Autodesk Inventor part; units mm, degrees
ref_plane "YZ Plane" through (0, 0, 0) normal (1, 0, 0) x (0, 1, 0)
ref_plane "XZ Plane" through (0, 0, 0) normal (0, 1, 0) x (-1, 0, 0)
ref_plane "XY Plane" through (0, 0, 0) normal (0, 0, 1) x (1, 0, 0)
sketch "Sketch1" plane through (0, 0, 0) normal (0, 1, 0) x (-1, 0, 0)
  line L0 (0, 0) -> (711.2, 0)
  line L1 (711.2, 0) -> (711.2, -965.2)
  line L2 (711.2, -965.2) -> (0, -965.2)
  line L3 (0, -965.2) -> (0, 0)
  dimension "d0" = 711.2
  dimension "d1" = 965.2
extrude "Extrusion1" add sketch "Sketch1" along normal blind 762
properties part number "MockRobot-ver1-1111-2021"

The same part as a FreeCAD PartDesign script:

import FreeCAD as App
import Part
import Sketcher

V = App.Vector
Q = App.Units.Quantity

doc = App.newDocument("Part")
params = doc.addObject("Spreadsheet::Sheet", "Params")
for row, (alias, value) in enumerate([
    ("sketch1_width", "28 in"),
    ("sketch1_height", "38 in"),
    ("pad1_length", "30 in"),
], start=1):
    params.set(f"A{row}", alias)
    params.set(f"B{row}", "=" + value)
    params.setAlias(f"B{row}", alias)

body = doc.addObject("PartDesign::Body", "Body")

# Sketch on XZ plane
sketch1 = body.newObject("Sketcher::SketchObject", "Sketch")
sketch1.AttachmentSupport = (doc.getObject("XZ_Plane"), [""])
sketch1.MapMode = "FlatFace"
sketch1.addGeometry(Part.LineSegment(V(-711, 0, 0), V(0, 0, 0)), False)
sketch1.addGeometry(Part.LineSegment(V(0, 0, 0), V(0, -965, 0)), False)
sketch1.addGeometry(Part.LineSegment(V(0, -965, 0), V(-711, -965, 0)), False)
sketch1.addGeometry(Part.LineSegment(V(-711, -965, 0), V(-711, 0, 0)), False)
sketch1.addConstraint(Sketcher.Constraint("Coincident", 0, 2, 1, 1))
sketch1.addConstraint(Sketcher.Constraint("Coincident", 1, 2, 2, 1))
sketch1.addConstraint(Sketcher.Constraint("Coincident", 2, 2, 3, 1))
sketch1.addConstraint(Sketcher.Constraint("Coincident", 3, 2, 0, 1))
sketch1.addConstraint(Sketcher.Constraint("Horizontal", 0))
sketch1.addConstraint(Sketcher.Constraint("Vertical", 1))
sketch1.addConstraint(Sketcher.Constraint("Horizontal", 2))
sketch1.addConstraint(Sketcher.Constraint("Vertical", 3))
sketch1.addConstraint(Sketcher.Constraint("Coincident", 0, 2, -1, 1))
sketch1.addConstraint(Sketcher.Constraint("DistanceX", 0, 1, 0, 2, Q("28 in")))
sketch1.addConstraint(Sketcher.Constraint("DistanceY", 1, 2, 1, 1, Q("38 in")))
sketch1.setExpression("Constraints[9]", "Params.sketch1_width")
sketch1.setExpression("Constraints[10]", "Params.sketch1_height")
pad1 = body.newObject("PartDesign::Pad", "Pad")
pad1.Profile = sketch1
pad1.setExpression("Length", "Params.pad1_length")
pad1.Reversed = True

doc.recompute()
